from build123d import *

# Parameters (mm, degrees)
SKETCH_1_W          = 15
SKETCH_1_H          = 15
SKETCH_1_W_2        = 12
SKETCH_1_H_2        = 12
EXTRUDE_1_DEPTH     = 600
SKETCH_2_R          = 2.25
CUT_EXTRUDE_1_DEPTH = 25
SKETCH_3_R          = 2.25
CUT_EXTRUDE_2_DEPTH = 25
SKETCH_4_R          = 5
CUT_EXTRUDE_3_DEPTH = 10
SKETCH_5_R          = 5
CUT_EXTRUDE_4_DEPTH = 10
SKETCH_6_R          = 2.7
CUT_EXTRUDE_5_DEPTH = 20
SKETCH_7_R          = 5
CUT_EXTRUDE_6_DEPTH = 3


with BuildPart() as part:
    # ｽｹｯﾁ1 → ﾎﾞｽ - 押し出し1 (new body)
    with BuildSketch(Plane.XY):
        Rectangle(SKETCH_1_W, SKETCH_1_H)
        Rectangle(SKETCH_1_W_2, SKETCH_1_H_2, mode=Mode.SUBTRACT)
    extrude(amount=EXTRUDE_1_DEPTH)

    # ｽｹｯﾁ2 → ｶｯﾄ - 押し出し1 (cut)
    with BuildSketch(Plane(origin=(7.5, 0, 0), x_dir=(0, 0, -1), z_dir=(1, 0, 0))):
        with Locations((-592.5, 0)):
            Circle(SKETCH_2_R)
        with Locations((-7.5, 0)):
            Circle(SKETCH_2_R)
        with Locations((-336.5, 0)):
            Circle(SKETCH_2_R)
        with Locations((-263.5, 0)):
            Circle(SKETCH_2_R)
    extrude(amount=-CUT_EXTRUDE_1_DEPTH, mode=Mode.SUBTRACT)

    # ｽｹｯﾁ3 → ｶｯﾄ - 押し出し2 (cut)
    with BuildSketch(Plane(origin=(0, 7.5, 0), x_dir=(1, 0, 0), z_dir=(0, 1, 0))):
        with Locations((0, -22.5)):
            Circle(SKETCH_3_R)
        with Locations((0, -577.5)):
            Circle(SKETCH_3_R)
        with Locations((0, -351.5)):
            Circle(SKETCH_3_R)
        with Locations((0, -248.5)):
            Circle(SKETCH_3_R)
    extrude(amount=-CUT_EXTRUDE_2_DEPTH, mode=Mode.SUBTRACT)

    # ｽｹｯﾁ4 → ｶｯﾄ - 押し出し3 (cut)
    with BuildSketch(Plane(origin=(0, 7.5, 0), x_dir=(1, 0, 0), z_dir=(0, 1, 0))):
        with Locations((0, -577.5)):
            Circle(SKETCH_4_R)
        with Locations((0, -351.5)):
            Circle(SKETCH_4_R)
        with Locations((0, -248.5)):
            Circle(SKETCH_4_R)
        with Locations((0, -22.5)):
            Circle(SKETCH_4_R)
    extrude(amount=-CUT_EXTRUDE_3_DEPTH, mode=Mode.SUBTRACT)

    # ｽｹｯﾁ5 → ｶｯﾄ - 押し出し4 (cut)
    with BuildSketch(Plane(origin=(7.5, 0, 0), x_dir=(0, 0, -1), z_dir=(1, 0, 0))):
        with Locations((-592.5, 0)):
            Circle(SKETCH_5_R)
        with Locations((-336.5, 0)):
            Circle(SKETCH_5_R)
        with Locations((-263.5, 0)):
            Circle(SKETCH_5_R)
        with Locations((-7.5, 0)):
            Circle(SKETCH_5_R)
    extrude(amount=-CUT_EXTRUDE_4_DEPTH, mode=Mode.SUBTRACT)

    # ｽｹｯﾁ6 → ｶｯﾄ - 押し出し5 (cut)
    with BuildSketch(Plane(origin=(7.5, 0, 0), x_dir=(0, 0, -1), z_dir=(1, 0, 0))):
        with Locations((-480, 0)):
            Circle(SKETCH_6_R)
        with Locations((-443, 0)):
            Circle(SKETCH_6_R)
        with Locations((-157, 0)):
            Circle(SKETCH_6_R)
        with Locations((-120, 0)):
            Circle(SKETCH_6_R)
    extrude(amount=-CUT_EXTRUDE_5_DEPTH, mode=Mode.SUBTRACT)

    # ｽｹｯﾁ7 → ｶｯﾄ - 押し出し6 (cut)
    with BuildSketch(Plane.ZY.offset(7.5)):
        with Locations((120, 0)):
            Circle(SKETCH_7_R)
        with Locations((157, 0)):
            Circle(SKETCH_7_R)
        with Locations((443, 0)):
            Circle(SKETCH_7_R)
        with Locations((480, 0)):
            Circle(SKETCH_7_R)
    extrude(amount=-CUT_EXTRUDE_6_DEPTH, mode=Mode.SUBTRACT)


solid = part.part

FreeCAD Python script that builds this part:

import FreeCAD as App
import Part
import Sketcher
from FreeCAD import Vector
Q = App.Units.Quantity

doc = App.newDocument("Part")
body = doc.addObject("PartDesign::Body", "Body")

sketch1 = doc.addObject("Sketcher::SketchObject", "Sketch")
body.addObject(sketch1)
sketch1.AttachmentSupport = (doc.XY_Plane, [""])
sketch1.MapMode = "FlatFace"
sketch1.addGeometry(Part.LineSegment(Vector(-8, 8, 0), Vector(-8, -8, 0)), False)
sketch1.addGeometry(Part.LineSegment(Vector(-8, -8, 0), Vector(8, -8, 0)), False)
sketch1.addGeometry(Part.LineSegment(Vector(8, -8, 0), Vector(8, 8, 0)), False)
sketch1.addGeometry(Part.LineSegment(Vector(8, 8, 0), Vector(-8, 8, 0)), False)
sketch1.addGeometry(Part.LineSegment(Vector(6, -6, 0), Vector(-6, -6, 0)), False)
sketch1.addGeometry(Part.LineSegment(Vector(-6, -6, 0), Vector(-6, 6, 0)), False)
sketch1.addGeometry(Part.LineSegment(Vector(-6, 6, 0), Vector(6, 6, 0)), False)
sketch1.addGeometry(Part.LineSegment(Vector(6, 6, 0), Vector(6, -6, 0)), False)
sketch1.addConstraint(Sketcher.Constraint("Coincident", 0, 2, 1, 1))
sketch1.addConstraint(Sketcher.Constraint("Coincident", 1, 2, 2, 1))
sketch1.addConstraint(Sketcher.Constraint("Coincident", 2, 2, 3, 1))
sketch1.addConstraint(Sketcher.Constraint("Coincident", 3, 2, 0, 1))
sketch1.addConstraint(Sketcher.Constraint("Coincident", 4, 2, 5, 1))
sketch1.addConstraint(Sketcher.Constraint("Coincident", 5, 2, 6, 1))
sketch1.addConstraint(Sketcher.Constraint("Coincident", 6, 2, 7, 1))
sketch1.addConstraint(Sketcher.Constraint("Coincident", 7, 2, 4, 1))
sketch1.addConstraint(Sketcher.Constraint("Vertical", 0))
sketch1.addConstraint(Sketcher.Constraint("Horizontal", 1))
sketch1.addConstraint(Sketcher.Constraint("Vertical", 2))
sketch1.addConstraint(Sketcher.Constraint("Horizontal", 3))
sketch1.addConstraint(Sketcher.Constraint("Horizontal", 4))
sketch1.addConstraint(Sketcher.Constraint("Vertical", 5))
sketch1.addConstraint(Sketcher.Constraint("Horizontal", 6))
sketch1.addConstraint(Sketcher.Constraint("Vertical", 7))
sketch1.addConstraint(Sketcher.Constraint("Symmetric", 0, 2, 2, 2, -1, 1))
sketch1.addConstraint(Sketcher.Constraint("Symmetric", 4, 2, 6, 2, -1, 1))
sketch1.addConstraint(Sketcher.Constraint("Equal", 3, 0))
sketch1.addConstraint(Sketcher.Constraint("Equal", 6, 5))
sketch1.addConstraint(Sketcher.Constraint("DistanceX", 1, 1, 1, 2, Q("15 mm")))
sketch1.addConstraint(Sketcher.Constraint("DistanceX", 4, 2, 4, 1, Q("12 mm")))
pad1 = doc.addObject("PartDesign::Pad", "Pad")
body.addObject(pad1)
pad1.Profile = sketch1
pad1.Length = 600

sketch2 = doc.addObject("Sketcher::SketchObject", "Sketch001")
body.addObject(sketch2)
sketch2.AttachmentSupport = (doc.YZ_Plane, [""])
sketch2.MapMode = "FlatFace"
sketch2.AttachmentOffset = App.Placement(Vector(0, 0, 7.5), App.Rotation())
sketch2.addGeometry(Part.Circle(Vector(0, 592.5, 0), Vector(0, 0, 1), 2.2), False)
sketch2.addGeometry(Part.Circle(Vector(0, 7.5, 0), Vector(0, 0, 1), 2.2), False)
sketch2.addGeometry(Part.Circle(Vector(0, 336.5, 0), Vector(0, 0, 1), 2.2), False)
sketch2.addGeometry(Part.Circle(Vector(0, 263.5, 0), Vector(0, 0, 1), 2.2), False)
sketch2.addConstraint(Sketcher.Constraint("Equal", 0, 1))
sketch2.addConstraint(Sketcher.Constraint("Equal", 1, 2))
sketch2.addConstraint(Sketcher.Constraint("Equal", 2, 3))
sketch2.addConstraint(Sketcher.Constraint("PointOnObject", 0, 3, -2))
sketch2.addConstraint(Sketcher.Constraint("PointOnObject", 1, 3, -2))
sketch2.addConstraint(Sketcher.Constraint("PointOnObject", 2, 3, -2))
sketch2.addConstraint(Sketcher.Constraint("PointOnObject", 3, 3, -2))
sketch2.addConstraint(Sketcher.Constraint("Diameter", 0, Q("4.5 mm")))
sketch2.addConstraint(Sketcher.Constraint("DistanceY", 1, 3, 0, 3, Q("585 mm")))
sketch2.addConstraint(Sketcher.Constraint("DistanceY", 2, 3, 0, 3, Q("256 mm")))
sketch2.addConstraint(Sketcher.Constraint("DistanceY", 3, 3, 2, 3, Q("73 mm")))
sketch2.addConstraint(Sketcher.Constraint("DistanceY", -1, 1, 0, 3, Q("592.5 mm")))
pocket1 = doc.addObject("PartDesign::Pocket", "Pocket")
body.addObject(pocket1)
pocket1.Profile = sketch2
pocket1.Length = 25

sketch3 = doc.addObject("Sketcher::SketchObject", "Sketch002")
body.addObject(sketch3)
sketch3.AttachmentSupport = (doc.XZ_Plane, [""])
sketch3.MapMode = "FlatFace"
sketch3.AttachmentOffset = App.Placement(Vector(0, 0, -7.5), App.Rotation())
sketch3.addGeometry(Part.Circle(Vector(0, 22.5, 0), Vector(0, 0, 1), 2.2), False)
sketch3.addGeometry(Part.Circle(Vector(0, 577.5, 0), Vector(0, 0, 1), 2.2), False)
sketch3.addGeometry(Part.Circle(Vector(0, 351.5, 0), Vector(0, 0, 1), 2.2), False)
sketch3.addGeometry(Part.Circle(Vector(0, 248.5, 0), Vector(0, 0, 1), 2.2), False)
sketch3.addConstraint(Sketcher.Constraint("Equal", 0, 1))
sketch3.addConstraint(Sketcher.Constraint("Equal", 1, 2))
sketch3.addConstraint(Sketcher.Constraint("Equal", 2, 3))
sketch3.addConstraint(Sketcher.Constraint("PointOnObject", 0, 3, -2))
sketch3.addConstraint(Sketcher.Constraint("PointOnObject", 1, 3, -2))
sketch3.addConstraint(Sketcher.Constraint("PointOnObject", 2, 3, -2))
sketch3.addConstraint(Sketcher.Constraint("PointOnObject", 3, 3, -2))
sketch3.addConstraint(Sketcher.Constraint("Diameter", 0, Q("4.5 mm")))
sketch3.addConstraint(Sketcher.Constraint("DistanceY", 0, 3, 1, 3, Q("555 mm")))
sketch3.addConstraint(Sketcher.Constraint("DistanceY", 2, 3, 1, 3, Q("226 mm")))
sketch3.addConstraint(Sketcher.Constraint("DistanceY", 3, 3, 2, 3, Q("103 mm")))
sketch3.addConstraint(Sketcher.Constraint("DistanceY", -1, 1, 0, 3, Q("22.5 mm")))
pocket2 = doc.addObject("PartDesign::Pocket", "Pocket001")
body.addObject(pocket2)
pocket2.Profile = sketch3
pocket2.Length = 25
pocket2.Reversed = True

sketch4 = doc.addObject("Sketcher::SketchObject", "Sketch003")
body.addObject(sketch4)
sketch4.AttachmentSupport = (doc.XZ_Plane, [""])
sketch4.MapMode = "FlatFace"
sketch4.AttachmentOffset = App.Placement(Vector(0, 0, -7.5), App.Rotation())
sketch4.addGeometry(Part.Circle(Vector(0, 578, 0), Vector(0, 0, 1), 5), False)
sketch4.addGeometry(Part.Circle(Vector(0, 352, 0), Vector(0, 0, 1), 5), False)
sketch4.addGeometry(Part.Circle(Vector(0, 248, 0), Vector(0, 0, 1), 5), False)
sketch4.addGeometry(Part.Circle(Vector(0, 22, 0), Vector(0, 0, 1), 5), False)
sketch4.addConstraint(Sketcher.Constraint("Equal", 0, 1))
sketch4.addConstraint(Sketcher.Constraint("Equal", 1, 2))
sketch4.addConstraint(Sketcher.Constraint("Equal", 2, 3))
sketch4.addConstraint(Sketcher.Constraint("PointOnObject", 0, 3, -2))
sketch4.addConstraint(Sketcher.Constraint("PointOnObject", 1, 3, -2))
sketch4.addConstraint(Sketcher.Constraint("PointOnObject", 2, 3, -2))
sketch4.addConstraint(Sketcher.Constraint("PointOnObject", 3, 3, -2))
sketch4.addConstraint(Sketcher.Constraint("Diameter", 0, Q("10 mm")))
sketch4.addConstraint(Sketcher.Constraint("DistanceY", 1, 3, 0, 3, Q("226 mm")))
sketch4.addConstraint(Sketcher.Constraint("DistanceY", 2, 3, 1, 3, Q("103 mm")))
sketch4.addConstraint(Sketcher.Constraint("DistanceY", 3, 3, 2, 3, Q("226 mm")))
sketch4.addConstraint(Sketcher.Constraint("DistanceY", -1, 1, 0, 3, Q("577.5 mm")))
pocket3 = doc.addObject("PartDesign::Pocket", "Pocket002")
body.addObject(pocket3)
pocket3.Profile = sketch4
pocket3.Length = 10
pocket3.Reversed = True

sketch5 = doc.addObject("Sketcher::SketchObject", "Sketch004")
body.addObject(sketch5)
sketch5.AttachmentSupport = (doc.YZ_Plane, [""])
sketch5.MapMode = "FlatFace"
sketch5.AttachmentOffset = App.Placement(Vector(0, 0, 7.5), App.Rotation())
sketch5.addGeometry(Part.Circle(Vector(0, 592, 0), Vector(0, 0, 1), 5), False)
sketch5.addGeometry(Part.Circle(Vector(0, 336, 0), Vector(0, 0, 1), 5), False)
sketch5.addGeometry(Part.Circle(Vector(0, 264, 0), Vector(0, 0, 1), 5), False)
sketch5.addGeometry(Part.Circle(Vector(0, 8, 0), Vector(0, 0, 1), 5), False)
sketch5.addConstraint(Sketcher.Constraint("Equal", 0, 1))
sketch5.addConstraint(Sketcher.Constraint("Equal", 1, 2))
sketch5.addConstraint(Sketcher.Constraint("Equal", 2, 3))
sketch5.addConstraint(Sketcher.Constraint("PointOnObject", 0, 3, -2))
sketch5.addConstraint(Sketcher.Constraint("PointOnObject", 1, 3, -2))
sketch5.addConstraint(Sketcher.Constraint("PointOnObject", 2, 3, -2))
sketch5.addConstraint(Sketcher.Constraint("PointOnObject", 3, 3, -2))
sketch5.addConstraint(Sketcher.Constraint("Diameter", 0, Q("10 mm")))
sketch5.addConstraint(Sketcher.Constraint("DistanceY", 1, 3, 0, 3, Q("256 mm")))
sketch5.addConstraint(Sketcher.Constraint("DistanceY", 2, 3, 1, 3, Q("73 mm")))
sketch5.addConstraint(Sketcher.Constraint("DistanceY", 3, 3, 2, 3, Q("256 mm")))
sketch5.addConstraint(Sketcher.Constraint("DistanceY", -1, 1, 0, 3, Q("592.5 mm")))
pocket4 = doc.addObject("PartDesign::Pocket", "Pocket003")
body.addObject(pocket4)
pocket4.Profile = sketch5
pocket4.Length = 10

sketch6 = doc.addObject("Sketcher::SketchObject", "Sketch005")
body.addObject(sketch6)
sketch6.AttachmentSupport = (doc.YZ_Plane, [""])
sketch6.MapMode = "FlatFace"
sketch6.AttachmentOffset = App.Placement(Vector(0, 0, 7.5), App.Rotation())
sketch6.addGeometry(Part.Circle(Vector(0, 480, 0), Vector(0, 0, 1), 2.7), False)
sketch6.addGeometry(Part.Circle(Vector(0, 443, 0), Vector(0, 0, 1), 2.7), False)
sketch6.addGeometry(Part.Circle(Vector(0, 157, 0), Vector(0, 0, 1), 2.7), False)
sketch6.addGeometry(Part.Circle(Vector(0, 120, 0), Vector(0, 0, 1), 2.7), False)
sketch6.addConstraint(Sketcher.Constraint("Equal", 0, 1))
sketch6.addConstraint(Sketcher.Constraint("Equal", 1, 2))
sketch6.addConstraint(Sketcher.Constraint("Equal", 2, 3))
sketch6.addConstraint(Sketcher.Constraint("PointOnObject", 0, 3, -2))
sketch6.addConstraint(Sketcher.Constraint("PointOnObject", 1, 3, -2))
sketch6.addConstraint(Sketcher.Constraint("PointOnObject", 2, 3, -2))
sketch6.addConstraint(Sketcher.Constraint("PointOnObject", 3, 3, -2))
sketch6.addConstraint(Sketcher.Constraint("Diameter", 0, Q("5.4 mm")))
sketch6.addConstraint(Sketcher.Constraint("DistanceY", -1, 1, 0, 3, Q("480 mm")))
sketch6.addConstraint(Sketcher.Constraint("DistanceY", -1, 1, 1, 3, Q("443 mm")))
sketch6.addConstraint(Sketcher.Constraint("DistanceY", -1, 1, 2, 3, Q("157 mm")))
sketch6.addConstraint(Sketcher.Constraint("DistanceY", -1, 1, 3, 3, Q("120 mm")))
pocket5 = doc.addObject("PartDesign::Pocket", "Pocket004")
body.addObject(pocket5)
pocket5.Profile = sketch6
pocket5.Length = 20

sketch7 = doc.addObject("Sketcher::SketchObject", "Sketch006")
body.addObject(sketch7)
sketch7.AttachmentSupport = (doc.YZ_Plane, [""])
sketch7.MapMode = "FlatFace"
sketch7.AttachmentOffset = App.Placement(Vector(0, 0, -7.5), App.Rotation())
sketch7.addGeometry(Part.Circle(Vector(0, 120, 0), Vector(0, 0, 1), 5), False)
sketch7.addGeometry(Part.Circle(Vector(0, 157, 0), Vector(0, 0, 1), 5), False)
sketch7.addGeometry(Part.Circle(Vector(0, 443, 0), Vector(0, 0, 1), 5), False)
sketch7.addGeometry(Part.Circle(Vector(0, 480, 0), Vector(0, 0, 1), 5), False)
sketch7.addConstraint(Sketcher.Constraint("Equal", 0, 1))
sketch7.addConstraint(Sketcher.Constraint("Equal", 1, 2))
sketch7.addConstraint(Sketcher.Constraint("Equal", 2, 3))
sketch7.addConstraint(Sketcher.Constraint("PointOnObject", 0, 3, -2))
sketch7.addConstraint(Sketcher.Constraint("PointOnObject", 1, 3, -2))
sketch7.addConstraint(Sketcher.Constraint("PointOnObject", 2, 3, -2))
sketch7.addConstraint(Sketcher.Constraint("PointOnObject", 3, 3, -2))
sketch7.addConstraint(Sketcher.Constraint("Diameter", 0, Q("10 mm")))
sketch7.addConstraint(Sketcher.Constraint("DistanceY", -1, 1, 0, 3, Q("120 mm")))
sketch7.addConstraint(Sketcher.Constraint("DistanceY", -1, 1, 1, 3, Q("157 mm")))
sketch7.addConstraint(Sketcher.Constraint("DistanceY", -1, 1, 2, 3, Q("443 mm")))
sketch7.addConstraint(Sketcher.Constraint("DistanceY", -1, 1, 3, 3, Q("480 mm")))
pocket6 = doc.addObject("PartDesign::Pocket", "Pocket005")
body.addObject(pocket6)
pocket6.Profile = sketch7
pocket6.Length = 3
pocket6.Reversed = True

doc.recompute()
